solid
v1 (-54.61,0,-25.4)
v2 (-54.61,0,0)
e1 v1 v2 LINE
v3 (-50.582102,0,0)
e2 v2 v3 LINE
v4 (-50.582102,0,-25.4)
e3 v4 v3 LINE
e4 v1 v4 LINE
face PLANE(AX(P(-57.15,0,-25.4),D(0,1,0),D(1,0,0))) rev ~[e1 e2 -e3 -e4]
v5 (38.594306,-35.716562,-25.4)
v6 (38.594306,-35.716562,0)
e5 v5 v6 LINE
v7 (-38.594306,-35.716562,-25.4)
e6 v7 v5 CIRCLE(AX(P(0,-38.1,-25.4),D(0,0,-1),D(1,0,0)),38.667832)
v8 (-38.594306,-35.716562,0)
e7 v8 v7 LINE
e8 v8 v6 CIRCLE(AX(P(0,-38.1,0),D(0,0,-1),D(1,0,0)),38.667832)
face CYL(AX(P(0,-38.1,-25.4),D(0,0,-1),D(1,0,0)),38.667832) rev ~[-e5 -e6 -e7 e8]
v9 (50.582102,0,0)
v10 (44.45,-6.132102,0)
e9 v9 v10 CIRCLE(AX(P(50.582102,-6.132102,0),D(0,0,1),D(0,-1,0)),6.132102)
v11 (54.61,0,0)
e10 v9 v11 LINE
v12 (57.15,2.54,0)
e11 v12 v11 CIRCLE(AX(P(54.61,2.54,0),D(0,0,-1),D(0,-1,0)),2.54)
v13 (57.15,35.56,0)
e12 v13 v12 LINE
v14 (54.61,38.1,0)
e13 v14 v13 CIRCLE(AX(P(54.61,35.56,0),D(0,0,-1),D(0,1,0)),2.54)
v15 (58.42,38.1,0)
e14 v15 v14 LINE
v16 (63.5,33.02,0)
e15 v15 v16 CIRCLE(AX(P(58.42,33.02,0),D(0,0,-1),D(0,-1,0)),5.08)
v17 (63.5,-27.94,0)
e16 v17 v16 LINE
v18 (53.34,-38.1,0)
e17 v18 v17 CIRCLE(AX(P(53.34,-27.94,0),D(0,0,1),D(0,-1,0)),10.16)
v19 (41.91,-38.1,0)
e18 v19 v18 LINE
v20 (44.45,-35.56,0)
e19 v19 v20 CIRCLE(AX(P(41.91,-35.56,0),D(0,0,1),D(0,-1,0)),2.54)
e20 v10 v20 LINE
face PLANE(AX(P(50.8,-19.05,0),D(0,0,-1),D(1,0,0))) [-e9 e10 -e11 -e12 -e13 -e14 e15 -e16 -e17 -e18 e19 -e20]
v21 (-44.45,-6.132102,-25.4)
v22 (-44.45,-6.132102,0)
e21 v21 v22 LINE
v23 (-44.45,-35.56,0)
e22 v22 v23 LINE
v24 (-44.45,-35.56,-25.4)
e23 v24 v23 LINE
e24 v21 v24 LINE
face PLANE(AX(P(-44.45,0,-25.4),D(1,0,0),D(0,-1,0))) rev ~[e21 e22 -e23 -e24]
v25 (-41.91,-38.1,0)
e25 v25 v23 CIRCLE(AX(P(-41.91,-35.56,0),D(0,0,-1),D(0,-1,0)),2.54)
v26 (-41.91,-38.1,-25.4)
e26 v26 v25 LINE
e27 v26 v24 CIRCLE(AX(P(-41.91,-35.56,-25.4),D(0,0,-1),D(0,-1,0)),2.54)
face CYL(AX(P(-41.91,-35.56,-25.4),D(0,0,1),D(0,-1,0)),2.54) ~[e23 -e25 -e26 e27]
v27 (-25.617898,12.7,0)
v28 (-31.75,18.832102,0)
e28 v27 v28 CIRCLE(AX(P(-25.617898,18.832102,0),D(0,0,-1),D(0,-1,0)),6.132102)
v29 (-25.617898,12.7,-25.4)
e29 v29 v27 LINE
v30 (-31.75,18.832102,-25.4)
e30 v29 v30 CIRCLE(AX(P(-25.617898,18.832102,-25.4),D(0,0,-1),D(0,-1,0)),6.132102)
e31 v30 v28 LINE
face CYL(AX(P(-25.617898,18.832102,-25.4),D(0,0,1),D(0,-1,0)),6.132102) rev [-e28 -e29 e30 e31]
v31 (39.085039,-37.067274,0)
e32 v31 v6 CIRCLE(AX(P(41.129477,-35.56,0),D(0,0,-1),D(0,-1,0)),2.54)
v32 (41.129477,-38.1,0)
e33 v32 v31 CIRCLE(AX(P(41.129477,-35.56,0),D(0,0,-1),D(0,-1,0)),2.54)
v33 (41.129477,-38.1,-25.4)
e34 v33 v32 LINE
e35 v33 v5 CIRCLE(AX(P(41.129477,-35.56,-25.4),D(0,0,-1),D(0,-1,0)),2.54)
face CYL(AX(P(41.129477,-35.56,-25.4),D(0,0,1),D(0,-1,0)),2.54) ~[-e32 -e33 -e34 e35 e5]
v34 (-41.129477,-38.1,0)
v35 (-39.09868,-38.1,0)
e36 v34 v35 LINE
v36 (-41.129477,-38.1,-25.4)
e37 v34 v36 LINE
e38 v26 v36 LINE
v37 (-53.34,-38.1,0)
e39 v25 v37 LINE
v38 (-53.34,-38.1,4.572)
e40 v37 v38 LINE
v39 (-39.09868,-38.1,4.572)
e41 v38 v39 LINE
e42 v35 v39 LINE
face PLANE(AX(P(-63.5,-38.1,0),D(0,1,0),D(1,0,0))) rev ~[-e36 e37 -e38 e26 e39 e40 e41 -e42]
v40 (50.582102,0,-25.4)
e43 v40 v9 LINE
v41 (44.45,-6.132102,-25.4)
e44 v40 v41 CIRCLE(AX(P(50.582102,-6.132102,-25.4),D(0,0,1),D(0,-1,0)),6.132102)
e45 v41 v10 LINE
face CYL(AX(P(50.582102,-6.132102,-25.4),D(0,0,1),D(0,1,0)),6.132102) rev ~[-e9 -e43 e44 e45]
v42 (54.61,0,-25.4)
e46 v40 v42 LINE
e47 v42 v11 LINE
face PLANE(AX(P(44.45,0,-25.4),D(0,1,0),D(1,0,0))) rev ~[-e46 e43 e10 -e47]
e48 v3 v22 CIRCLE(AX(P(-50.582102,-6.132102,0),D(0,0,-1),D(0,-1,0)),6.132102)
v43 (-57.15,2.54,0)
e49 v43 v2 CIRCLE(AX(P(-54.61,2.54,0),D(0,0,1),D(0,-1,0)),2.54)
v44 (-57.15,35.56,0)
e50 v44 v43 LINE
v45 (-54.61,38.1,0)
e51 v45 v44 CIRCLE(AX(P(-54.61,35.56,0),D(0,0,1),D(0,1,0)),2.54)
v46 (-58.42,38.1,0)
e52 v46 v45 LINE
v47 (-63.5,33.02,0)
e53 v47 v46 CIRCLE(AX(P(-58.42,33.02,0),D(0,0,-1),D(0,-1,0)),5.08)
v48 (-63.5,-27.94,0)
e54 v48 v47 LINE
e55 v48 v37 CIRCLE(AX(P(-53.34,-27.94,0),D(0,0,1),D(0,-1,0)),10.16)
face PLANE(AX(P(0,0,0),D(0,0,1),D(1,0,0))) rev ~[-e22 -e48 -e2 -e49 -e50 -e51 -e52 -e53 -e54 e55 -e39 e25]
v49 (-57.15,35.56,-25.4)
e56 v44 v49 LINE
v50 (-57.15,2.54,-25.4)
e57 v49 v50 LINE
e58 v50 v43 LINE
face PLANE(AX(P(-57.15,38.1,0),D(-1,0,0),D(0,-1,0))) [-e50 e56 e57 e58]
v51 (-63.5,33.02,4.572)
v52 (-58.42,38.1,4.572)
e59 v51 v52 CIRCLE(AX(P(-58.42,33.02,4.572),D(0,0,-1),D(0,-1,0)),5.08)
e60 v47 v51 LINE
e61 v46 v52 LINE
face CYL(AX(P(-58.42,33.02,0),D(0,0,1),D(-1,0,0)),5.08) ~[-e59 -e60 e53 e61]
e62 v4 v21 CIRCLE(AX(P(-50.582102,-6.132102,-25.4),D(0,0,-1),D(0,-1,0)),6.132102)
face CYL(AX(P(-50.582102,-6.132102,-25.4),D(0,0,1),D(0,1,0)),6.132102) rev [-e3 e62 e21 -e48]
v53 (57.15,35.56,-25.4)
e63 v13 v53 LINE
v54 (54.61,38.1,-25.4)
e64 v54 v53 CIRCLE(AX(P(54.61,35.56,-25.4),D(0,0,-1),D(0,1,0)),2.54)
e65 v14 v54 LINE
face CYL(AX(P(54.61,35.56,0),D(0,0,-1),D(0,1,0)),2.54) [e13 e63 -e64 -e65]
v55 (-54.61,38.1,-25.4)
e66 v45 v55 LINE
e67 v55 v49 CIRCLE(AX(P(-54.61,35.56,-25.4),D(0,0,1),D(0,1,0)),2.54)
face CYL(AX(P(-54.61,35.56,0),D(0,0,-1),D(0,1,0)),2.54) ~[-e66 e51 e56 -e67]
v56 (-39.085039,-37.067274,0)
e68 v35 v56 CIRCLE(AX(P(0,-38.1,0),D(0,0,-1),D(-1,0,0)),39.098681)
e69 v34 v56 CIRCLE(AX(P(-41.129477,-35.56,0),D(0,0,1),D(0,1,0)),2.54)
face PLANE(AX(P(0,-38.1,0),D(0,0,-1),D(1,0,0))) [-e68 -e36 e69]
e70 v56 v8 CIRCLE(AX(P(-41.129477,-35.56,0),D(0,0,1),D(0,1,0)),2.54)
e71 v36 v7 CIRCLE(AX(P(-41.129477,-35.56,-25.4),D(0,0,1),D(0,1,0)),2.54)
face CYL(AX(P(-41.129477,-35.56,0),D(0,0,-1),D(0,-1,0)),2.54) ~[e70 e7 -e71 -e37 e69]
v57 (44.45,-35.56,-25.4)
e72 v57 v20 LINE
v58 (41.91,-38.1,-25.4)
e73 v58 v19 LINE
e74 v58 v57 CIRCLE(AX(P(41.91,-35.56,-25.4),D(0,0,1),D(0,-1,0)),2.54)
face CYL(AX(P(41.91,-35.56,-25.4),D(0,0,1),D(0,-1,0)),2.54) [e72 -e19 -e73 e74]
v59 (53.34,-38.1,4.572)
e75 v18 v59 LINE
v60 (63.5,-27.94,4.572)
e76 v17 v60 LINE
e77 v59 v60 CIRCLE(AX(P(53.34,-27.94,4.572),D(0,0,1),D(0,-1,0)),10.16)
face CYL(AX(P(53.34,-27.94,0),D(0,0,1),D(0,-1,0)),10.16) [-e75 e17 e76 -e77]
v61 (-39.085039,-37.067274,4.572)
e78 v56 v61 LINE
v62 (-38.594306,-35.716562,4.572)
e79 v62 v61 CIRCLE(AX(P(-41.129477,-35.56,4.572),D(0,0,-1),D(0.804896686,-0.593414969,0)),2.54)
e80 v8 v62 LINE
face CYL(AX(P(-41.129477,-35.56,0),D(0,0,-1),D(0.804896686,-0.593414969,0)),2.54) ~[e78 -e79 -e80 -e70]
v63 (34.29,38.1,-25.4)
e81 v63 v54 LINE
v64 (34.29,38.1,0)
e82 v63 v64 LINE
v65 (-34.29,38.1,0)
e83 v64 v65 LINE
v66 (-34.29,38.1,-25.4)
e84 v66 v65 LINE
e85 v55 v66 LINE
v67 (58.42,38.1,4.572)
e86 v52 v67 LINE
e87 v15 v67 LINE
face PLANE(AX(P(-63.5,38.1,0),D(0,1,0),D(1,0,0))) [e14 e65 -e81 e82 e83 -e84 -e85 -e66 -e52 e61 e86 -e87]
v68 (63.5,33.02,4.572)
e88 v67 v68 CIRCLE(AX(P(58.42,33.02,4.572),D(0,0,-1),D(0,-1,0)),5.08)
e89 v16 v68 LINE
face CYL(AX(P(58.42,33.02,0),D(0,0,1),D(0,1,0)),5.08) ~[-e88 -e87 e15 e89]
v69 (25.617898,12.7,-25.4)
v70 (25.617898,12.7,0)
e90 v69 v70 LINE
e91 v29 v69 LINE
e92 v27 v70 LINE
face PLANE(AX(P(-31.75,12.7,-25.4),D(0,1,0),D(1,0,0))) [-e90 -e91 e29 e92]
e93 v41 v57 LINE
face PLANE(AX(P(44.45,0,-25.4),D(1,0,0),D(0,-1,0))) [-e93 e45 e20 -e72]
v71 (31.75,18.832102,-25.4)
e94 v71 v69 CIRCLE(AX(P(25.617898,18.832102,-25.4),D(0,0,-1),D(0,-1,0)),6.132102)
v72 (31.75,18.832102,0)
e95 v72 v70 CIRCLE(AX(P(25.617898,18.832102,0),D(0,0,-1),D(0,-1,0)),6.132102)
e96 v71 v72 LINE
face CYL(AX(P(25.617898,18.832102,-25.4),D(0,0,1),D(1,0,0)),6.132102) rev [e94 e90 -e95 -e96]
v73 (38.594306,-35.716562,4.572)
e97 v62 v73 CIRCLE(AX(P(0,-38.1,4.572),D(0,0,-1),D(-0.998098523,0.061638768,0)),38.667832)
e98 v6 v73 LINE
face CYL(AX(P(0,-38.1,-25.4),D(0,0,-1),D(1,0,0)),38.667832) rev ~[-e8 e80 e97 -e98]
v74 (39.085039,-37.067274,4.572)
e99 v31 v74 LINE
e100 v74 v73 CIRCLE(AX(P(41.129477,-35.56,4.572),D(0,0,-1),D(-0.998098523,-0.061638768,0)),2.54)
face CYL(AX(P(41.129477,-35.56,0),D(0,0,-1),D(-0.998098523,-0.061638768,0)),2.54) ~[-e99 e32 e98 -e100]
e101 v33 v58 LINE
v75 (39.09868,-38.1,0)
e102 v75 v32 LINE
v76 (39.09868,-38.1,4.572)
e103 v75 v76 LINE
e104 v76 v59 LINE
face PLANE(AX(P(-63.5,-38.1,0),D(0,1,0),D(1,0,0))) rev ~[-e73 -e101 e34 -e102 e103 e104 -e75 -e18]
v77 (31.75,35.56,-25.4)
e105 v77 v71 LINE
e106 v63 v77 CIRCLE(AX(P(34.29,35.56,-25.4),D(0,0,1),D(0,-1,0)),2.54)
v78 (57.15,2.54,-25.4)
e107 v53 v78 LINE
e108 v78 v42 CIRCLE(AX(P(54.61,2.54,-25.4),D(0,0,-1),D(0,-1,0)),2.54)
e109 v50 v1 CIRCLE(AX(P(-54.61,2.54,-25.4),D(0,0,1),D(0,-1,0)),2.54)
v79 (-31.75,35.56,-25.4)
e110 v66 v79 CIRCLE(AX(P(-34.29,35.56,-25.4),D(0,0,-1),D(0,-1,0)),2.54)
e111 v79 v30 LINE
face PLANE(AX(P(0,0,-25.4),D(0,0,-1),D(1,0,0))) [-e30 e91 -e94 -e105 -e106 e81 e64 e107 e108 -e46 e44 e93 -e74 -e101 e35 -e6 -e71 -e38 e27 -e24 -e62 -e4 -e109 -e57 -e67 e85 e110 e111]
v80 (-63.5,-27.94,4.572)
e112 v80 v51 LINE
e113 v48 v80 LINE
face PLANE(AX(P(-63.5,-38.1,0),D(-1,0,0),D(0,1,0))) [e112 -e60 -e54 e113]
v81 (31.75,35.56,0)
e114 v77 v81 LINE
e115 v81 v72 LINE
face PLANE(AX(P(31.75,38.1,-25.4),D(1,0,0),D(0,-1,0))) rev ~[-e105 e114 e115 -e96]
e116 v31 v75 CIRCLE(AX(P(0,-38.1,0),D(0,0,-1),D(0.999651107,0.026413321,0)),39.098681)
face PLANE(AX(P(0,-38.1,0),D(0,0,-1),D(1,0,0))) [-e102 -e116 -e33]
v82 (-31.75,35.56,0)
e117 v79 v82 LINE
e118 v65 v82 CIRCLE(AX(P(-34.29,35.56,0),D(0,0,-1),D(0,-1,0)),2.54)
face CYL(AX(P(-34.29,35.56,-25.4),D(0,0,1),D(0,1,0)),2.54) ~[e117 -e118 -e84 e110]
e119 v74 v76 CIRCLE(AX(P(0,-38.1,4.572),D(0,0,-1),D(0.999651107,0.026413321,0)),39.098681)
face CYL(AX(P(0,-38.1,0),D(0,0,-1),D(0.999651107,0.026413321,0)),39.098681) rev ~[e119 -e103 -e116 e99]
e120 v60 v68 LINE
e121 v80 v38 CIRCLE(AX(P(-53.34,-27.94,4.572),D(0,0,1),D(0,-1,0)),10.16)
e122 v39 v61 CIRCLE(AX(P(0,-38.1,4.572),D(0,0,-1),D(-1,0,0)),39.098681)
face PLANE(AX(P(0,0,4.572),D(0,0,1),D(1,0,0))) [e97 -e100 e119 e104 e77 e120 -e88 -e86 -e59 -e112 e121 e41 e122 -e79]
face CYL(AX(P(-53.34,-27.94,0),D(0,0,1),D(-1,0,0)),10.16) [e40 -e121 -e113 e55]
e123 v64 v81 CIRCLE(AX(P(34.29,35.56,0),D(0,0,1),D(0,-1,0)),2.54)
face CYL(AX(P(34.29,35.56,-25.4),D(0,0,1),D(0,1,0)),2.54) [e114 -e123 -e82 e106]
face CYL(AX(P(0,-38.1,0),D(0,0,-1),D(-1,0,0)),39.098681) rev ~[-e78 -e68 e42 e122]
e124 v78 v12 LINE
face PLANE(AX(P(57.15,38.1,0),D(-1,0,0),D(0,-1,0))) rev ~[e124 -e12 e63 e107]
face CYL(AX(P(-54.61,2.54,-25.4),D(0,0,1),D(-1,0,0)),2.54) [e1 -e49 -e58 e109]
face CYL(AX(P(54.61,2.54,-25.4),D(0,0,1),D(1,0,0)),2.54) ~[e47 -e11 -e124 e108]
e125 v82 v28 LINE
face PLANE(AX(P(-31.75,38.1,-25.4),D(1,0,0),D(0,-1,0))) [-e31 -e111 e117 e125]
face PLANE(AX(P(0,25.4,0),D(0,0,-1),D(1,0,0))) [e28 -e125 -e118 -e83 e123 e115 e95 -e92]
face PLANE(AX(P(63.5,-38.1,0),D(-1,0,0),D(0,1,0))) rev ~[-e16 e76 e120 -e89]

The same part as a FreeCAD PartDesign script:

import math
import FreeCAD as App
import Part
import Sketcher
from FreeCAD import Vector
Q = App.Units.Quantity


def edges_at(feature, points):
    """Names of the edges that pass closest to the given points."""
    edges = feature.Shape.Edges
    near = lambda p: min(range(len(edges)), key=lambda i: edges[i].distToShape(Part.Vertex(*p))[0])
    return sorted({f"Edge{near(p) + 1}" for p in points})

doc = App.newDocument("Part")
params = doc.addObject("Spreadsheet::Sheet", "Params")
for row, (alias, value) in enumerate([
    ("sketch1_width", "5 in"),
    ("sketch1_height", "3 in"),
    ("pad1_length", "0.18 in"),
    ("sketch2_height", "3 in"),
    ("sketch2_width", "4.5 in"),
    ("pad2_length", "1 in"),
    ("sketch3_height", "1 in"),
    ("sketch3_width", "2.5 in"),
    ("sketch3_width2", "0.5 in"),
    ("sketch3_height2", "1.5 in"),
    ("pocket1_length", "1 in"),
    ("fillet_radius", "0.4 in"),
    ("fillet2_radius", "0.1 in"),
    ("fillet3_radius", "6.132102 mm"),
    ("fillet4_radius", "0.2 in"),
    ("fillet5_radius", "0.4 in"),
    ("sketch4_radius", "0.1 in"),
    ("pocket2_length", "0.2 in"),
], start=1):
    params.set(f"A{row}", alias)
    params.set(f"B{row}", "=" + value)
    params.setAlias(f"B{row}", alias)

body = doc.addObject("PartDesign::Body", "Body")

sketch1 = body.newObject("Sketcher::SketchObject", "Sketch")
sketch1.AttachmentSupport = (doc.getObject("XY_Plane"), [""])
sketch1.MapMode = "FlatFace"
sketch1.addGeometry([
    Part.LineSegment(Vector(-64, 38, 0), Vector(-64, -38, 0)),
    Part.LineSegment(Vector(-64, -38, 0), Vector(64, -38, 0)),
    Part.LineSegment(Vector(64, -38, 0), Vector(64, 38, 0)),
    Part.LineSegment(Vector(64, 38, 0), Vector(-64, 38, 0)),
], False)
sketch1.addConstraint([
    Sketcher.Constraint("Coincident", 0, 2, 1, 1),
    Sketcher.Constraint("Coincident", 1, 2, 2, 1),
    Sketcher.Constraint("Coincident", 2, 2, 3, 1),
    Sketcher.Constraint("Coincident", 3, 2, 0, 1),
    Sketcher.Constraint("Vertical", 0),
    Sketcher.Constraint("Horizontal", 1),
    Sketcher.Constraint("Vertical", 2),
    Sketcher.Constraint("Horizontal", 3),
    Sketcher.Constraint("Symmetric", 0, 2, 2, 2, -1, 1),
    Sketcher.Constraint("DistanceX", 1, 1, 1, 2, Q("5 in")),
    Sketcher.Constraint("DistanceY", 0, 2, 0, 1, Q("3 in")),
])
sketch1.setExpression("Constraints[9]", "Params.sketch1_width")
sketch1.setExpression("Constraints[10]", "Params.sketch1_height")
pad1 = body.newObject("PartDesign::Pad", "Pad")
pad1.Profile = sketch1
pad1.setExpression("Length", "Params.pad1_length")

sketch2 = body.newObject("Sketcher::SketchObject", "Sketch001")
sketch2.AttachmentSupport = (doc.getObject("XY_Plane"), [""])
sketch2.MapMode = "FlatFace"
sketch2.addGeometry([
    Part.LineSegment(Vector(-57, -38, 0), Vector(-57, 38, 0)),
    Part.LineSegment(Vector(-57, 38, 0), Vector(57, 38, 0)),
    Part.LineSegment(Vector(57, 38, 0), Vector(57, -38, 0)),
    Part.LineSegment(Vector(57, -38, 0), Vector(-57, -38, 0)),
], False)
sketch2.addConstraint([
    Sketcher.Constraint("Coincident", 0, 2, 1, 1),
    Sketcher.Constraint("Coincident", 1, 2, 2, 1),
    Sketcher.Constraint("Coincident", 2, 2, 3, 1),
    Sketcher.Constraint("Coincident", 3, 2, 0, 1),
    Sketcher.Constraint("Vertical", 0),
    Sketcher.Constraint("Horizontal", 1),
    Sketcher.Constraint("Vertical", 2),
    Sketcher.Constraint("Horizontal", 3),
    Sketcher.Constraint("Symmetric", 0, 2, 2, 2, -1, 1),
    Sketcher.Constraint("DistanceY", 0, 1, 0, 2, Q("3 in")),
    Sketcher.Constraint("DistanceX", 1, 1, 1, 2, Q("4.5 in")),
])
sketch2.setExpression("Constraints[9]", "Params.sketch2_height")
sketch2.setExpression("Constraints[10]", "Params.sketch2_width")
pad2 = body.newObject("PartDesign::Pad", "Pad001")
pad2.Profile = sketch2
pad2.setExpression("Length", "Params.pad2_length")
pad2.Reversed = True

sketch3 = body.newObject("Sketcher::SketchObject", "Sketch002")
sketch3.AttachmentSupport = (doc.getObject("XY_Plane"), [""])
sketch3.MapMode = "FlatFace"
sketch3.AttachmentOffset = App.Placement(Vector(0, 0, -1 * 25.4), App.Rotation())
sketch3.addGeometry([
    Part.LineSegment(Vector(-32, 13, 0), Vector(-32, 38, 0)),
    Part.LineSegment(Vector(-32, 38, 0), Vector(32, 38, 0)),
    Part.LineSegment(Vector(32, 38, 0), Vector(32, 13, 0)),
    Part.LineSegment(Vector(32, 13, 0), Vector(-32, 13, 0)),
    Part.LineSegment(Vector(-57, -38, 0), Vector(-57, 0, 0)),
    Part.LineSegment(Vector(-57, 0, 0), Vector(-44, 0, 0)),
    Part.LineSegment(Vector(-44, 0, 0), Vector(-44, -38, 0)),
    Part.LineSegment(Vector(-44, -38, 0), Vector(-57, -38, 0)),
    Part.LineSegment(Vector(44, -38, 0), Vector(44, 0, 0)),
    Part.LineSegment(Vector(44, 0, 0), Vector(57, 0, 0)),
    Part.LineSegment(Vector(57, 0, 0), Vector(57, -38, 0)),
    Part.LineSegment(Vector(57, -38, 0), Vector(44, -38, 0)),
    Part.Circle(Vector(0, -38, 0), Vector(0, 0, 1), 39),
], False)
sketch3.addConstraint([
    Sketcher.Constraint("Coincident", 0, 2, 1, 1),
    Sketcher.Constraint("Coincident", 1, 2, 2, 1),
    Sketcher.Constraint("Coincident", 2, 2, 3, 1),
    Sketcher.Constraint("Coincident", 3, 2, 0, 1),
    Sketcher.Constraint("Coincident", 4, 2, 5, 1),
    Sketcher.Constraint("Coincident", 5, 2, 6, 1),
    Sketcher.Constraint("Coincident", 6, 2, 7, 1),
    Sketcher.Constraint("Coincident", 7, 2, 4, 1),
    Sketcher.Constraint("Coincident", 8, 2, 9, 1),
    Sketcher.Constraint("Coincident", 9, 2, 10, 1),
    Sketcher.Constraint("Coincident", 10, 2, 11, 1),
    Sketcher.Constraint("Coincident", 11, 2, 8, 1),
    Sketcher.Constraint("Vertical", 0),
    Sketcher.Constraint("Horizontal", 1),
    Sketcher.Constraint("Vertical", 2),
    Sketcher.Constraint("Horizontal", 3),
    Sketcher.Constraint("Vertical", 4),
    Sketcher.Constraint("Horizontal", 5),
    Sketcher.Constraint("Vertical", 6),
    Sketcher.Constraint("Horizontal", 7),
    Sketcher.Constraint("Vertical", 8),
    Sketcher.Constraint("Horizontal", 9),
    Sketcher.Constraint("Vertical", 10),
    Sketcher.Constraint("Horizontal", 11),
    Sketcher.Constraint("Symmetric", 5, 2, 8, 2, -1, 1),
    Sketcher.Constraint("Symmetric", 4, 2, 9, 2, -2),
    Sketcher.Constraint("PointOnObject", 12, 3, -2),
    Sketcher.Constraint("Horizontal", 12, 3, 6, 2),
    Sketcher.Constraint("Horizontal", 7, 2, 10, 2),
    Sketcher.Constraint("DistanceY", 0, 1, 0, 2, Q("1 in")),
    Sketcher.Constraint("DistanceX", 1, 1, 1, 2, Q("2.5 in")),
    Sketcher.Constraint("DistanceX", 5, 1, 5, 2, Q("0.5 in")),
    Sketcher.Constraint("DistanceY", 4, 1, 4, 2, Q("1.5 in")),
    Sketcher.Constraint("DistanceY", 12, 3, 0, 2, Q("3 in")),
    Sketcher.Constraint("DistanceX", 4, 2, 3, 2, Q("1 in")),
    Sketcher.Constraint("DistanceX", 3, 2, 8, 2, Q("3 in")),
    Sketcher.Constraint("Diameter", 12, 77.335665),
])
sketch3.setExpression("Constraints[29]", "Params.sketch3_height")
sketch3.setExpression("Constraints[30]", "Params.sketch3_width")
sketch3.setExpression("Constraints[31]", "Params.sketch3_width2")
sketch3.setExpression("Constraints[32]", "Params.sketch3_height2")
pocket1 = body.newObject("PartDesign::Pocket", "Pocket")
pocket1.Profile = sketch3
pocket1.setExpression("Length", "Params.pocket1_length")
pocket1.Reversed = True
doc.recompute()

fillet = body.newObject("PartDesign::Fillet", "Fillet")
fillet.Base = (pocket1, edges_at(pocket1, [(-63.5, -38.1, 2.286)]))
fillet.setExpression("Radius", "Params.fillet_radius")
doc.recompute()

fillet2 = body.newObject("PartDesign::Fillet", "Fillet001")
fillet2.Base = (fillet, edges_at(fillet, [
    (-44.45, -38.1, -12.7),
    (38.668, -38.1, -12.7),
    (-38.668, -38.1, -12.7),
    (44.45, -38.1, -12.7),
    (57.15, 0, -12.7),
    (-57.15, 0, -12.7),
    (-31.75, 38.1, -12.7),
    (-57.15, 38.1, -12.7),
    (57.15, 38.1, -12.7),
    (31.75, 38.1, -12.7),
]))
fillet2.setExpression("Radius", "Params.fillet2_radius")
doc.recompute()

fillet3 = body.newObject("PartDesign::Fillet", "Fillet002")
fillet3.Base = (fillet2, edges_at(fillet2, [
    (-44.45, 0, -12.7),
    (44.45, 0, -12.7),
    (-31.75, 12.7, -12.7),
    (31.75, 12.7, -12.7),
]))
fillet3.setExpression("Radius", "Params.fillet3_radius")
doc.recompute()

fillet4 = body.newObject("PartDesign::Fillet", "Fillet003")
fillet4.Base = (fillet3, edges_at(fillet3, [(-63.5, 38.1, 2.286), (63.5, 38.1, 2.286)]))
fillet4.setExpression("Radius", "Params.fillet4_radius")
doc.recompute()

fillet5 = body.newObject("PartDesign::Fillet", "Fillet004")
fillet5.Base = (fillet4, edges_at(fillet4, [(63.5, -38.1, 2.286)]))
fillet5.setExpression("Radius", "Params.fillet5_radius")

sketch4 = body.newObject("Sketcher::SketchObject", "Sketch003")
sketch4.AttachmentSupport = (doc.getObject("XY_Plane"), [""])
sketch4.MapMode = "FlatFace"
sketch4.addGeometry([
    Part.ArcOfCircle(Part.Circle(Vector(0, -38.1, 0), Vector(0, 0, 1), 39.1), math.radians(0), math.radians(1.51)),
    Part.LineSegment(Vector(39.1, -38.1, 0), Vector(-39.1, -38.1, 0)),
    Part.ArcOfCircle(Part.Circle(Vector(0, -38.1, 0), Vector(0, 0, 1), 39.1), math.radians(178.49), math.radians(180)),
    Part.ArcOfCircle(Part.Circle(Vector(-41.1, -35.6, 0), Vector(0, 0, 1), 2.5), math.radians(-36), math.radians(-4)),
    Part.ArcOfCircle(Part.Circle(Vector(0, -38.1, 0), Vector(0, 0, 1), 38.7), math.radians(4), math.radians(176)),
    Part.ArcOfCircle(Part.Circle(Vector(41.1, -35.6, 0), Vector(0, 0, 1), 2.5), math.radians(-176), math.radians(-144)),
], False)
sketch4.addConstraint([
    Sketcher.Constraint("Coincident", 0, 1, 1, 1),
    Sketcher.Constraint("Coincident", 1, 2, 2, 2),
    Sketcher.Constraint("Coincident", 2, 1, 3, 1),
    Sketcher.Constraint("Tangent", 3, 2, 4, 2),
    Sketcher.Constraint("Tangent", 4, 1, 5, 1),
    Sketcher.Constraint("Coincident", 5, 2, 0, 2),
    Sketcher.Constraint("Horizontal", 1),
    Sketcher.Constraint("Coincident", 2, 3, 0, 3),
    Sketcher.Constraint("Coincident", 4, 3, 0, 3),
    Sketcher.Constraint("Equal", 0, 2),
    Sketcher.Constraint("Equal", 3, 5),
    Sketcher.Constraint("Symmetric", 3, 3, 5, 3, -2),
    Sketcher.Constraint("Horizontal", 4, 3, 0, 1),
    Sketcher.Constraint("Radius", 3, Q("0.1 in")),
    Sketcher.Constraint("DistanceY", 0, 3, -1, 1, Q("1.5 in")),
    Sketcher.Constraint("DistanceY", 3, 3, -1, 1, Q("1.4 in")),
    Sketcher.Constraint("Radius", 0, 39.098681),
    Sketcher.Constraint("Radius", 4, 38.667832),
])
sketch4.setExpression("Constraints[13]", "Params.sketch4_radius")
pocket2 = body.newObject("PartDesign::Pocket", "Pocket001")
pocket2.Profile = sketch4
pocket2.setExpression("Length", "Params.pocket2_length")
pocket2.Reversed = True

doc.recompute()
